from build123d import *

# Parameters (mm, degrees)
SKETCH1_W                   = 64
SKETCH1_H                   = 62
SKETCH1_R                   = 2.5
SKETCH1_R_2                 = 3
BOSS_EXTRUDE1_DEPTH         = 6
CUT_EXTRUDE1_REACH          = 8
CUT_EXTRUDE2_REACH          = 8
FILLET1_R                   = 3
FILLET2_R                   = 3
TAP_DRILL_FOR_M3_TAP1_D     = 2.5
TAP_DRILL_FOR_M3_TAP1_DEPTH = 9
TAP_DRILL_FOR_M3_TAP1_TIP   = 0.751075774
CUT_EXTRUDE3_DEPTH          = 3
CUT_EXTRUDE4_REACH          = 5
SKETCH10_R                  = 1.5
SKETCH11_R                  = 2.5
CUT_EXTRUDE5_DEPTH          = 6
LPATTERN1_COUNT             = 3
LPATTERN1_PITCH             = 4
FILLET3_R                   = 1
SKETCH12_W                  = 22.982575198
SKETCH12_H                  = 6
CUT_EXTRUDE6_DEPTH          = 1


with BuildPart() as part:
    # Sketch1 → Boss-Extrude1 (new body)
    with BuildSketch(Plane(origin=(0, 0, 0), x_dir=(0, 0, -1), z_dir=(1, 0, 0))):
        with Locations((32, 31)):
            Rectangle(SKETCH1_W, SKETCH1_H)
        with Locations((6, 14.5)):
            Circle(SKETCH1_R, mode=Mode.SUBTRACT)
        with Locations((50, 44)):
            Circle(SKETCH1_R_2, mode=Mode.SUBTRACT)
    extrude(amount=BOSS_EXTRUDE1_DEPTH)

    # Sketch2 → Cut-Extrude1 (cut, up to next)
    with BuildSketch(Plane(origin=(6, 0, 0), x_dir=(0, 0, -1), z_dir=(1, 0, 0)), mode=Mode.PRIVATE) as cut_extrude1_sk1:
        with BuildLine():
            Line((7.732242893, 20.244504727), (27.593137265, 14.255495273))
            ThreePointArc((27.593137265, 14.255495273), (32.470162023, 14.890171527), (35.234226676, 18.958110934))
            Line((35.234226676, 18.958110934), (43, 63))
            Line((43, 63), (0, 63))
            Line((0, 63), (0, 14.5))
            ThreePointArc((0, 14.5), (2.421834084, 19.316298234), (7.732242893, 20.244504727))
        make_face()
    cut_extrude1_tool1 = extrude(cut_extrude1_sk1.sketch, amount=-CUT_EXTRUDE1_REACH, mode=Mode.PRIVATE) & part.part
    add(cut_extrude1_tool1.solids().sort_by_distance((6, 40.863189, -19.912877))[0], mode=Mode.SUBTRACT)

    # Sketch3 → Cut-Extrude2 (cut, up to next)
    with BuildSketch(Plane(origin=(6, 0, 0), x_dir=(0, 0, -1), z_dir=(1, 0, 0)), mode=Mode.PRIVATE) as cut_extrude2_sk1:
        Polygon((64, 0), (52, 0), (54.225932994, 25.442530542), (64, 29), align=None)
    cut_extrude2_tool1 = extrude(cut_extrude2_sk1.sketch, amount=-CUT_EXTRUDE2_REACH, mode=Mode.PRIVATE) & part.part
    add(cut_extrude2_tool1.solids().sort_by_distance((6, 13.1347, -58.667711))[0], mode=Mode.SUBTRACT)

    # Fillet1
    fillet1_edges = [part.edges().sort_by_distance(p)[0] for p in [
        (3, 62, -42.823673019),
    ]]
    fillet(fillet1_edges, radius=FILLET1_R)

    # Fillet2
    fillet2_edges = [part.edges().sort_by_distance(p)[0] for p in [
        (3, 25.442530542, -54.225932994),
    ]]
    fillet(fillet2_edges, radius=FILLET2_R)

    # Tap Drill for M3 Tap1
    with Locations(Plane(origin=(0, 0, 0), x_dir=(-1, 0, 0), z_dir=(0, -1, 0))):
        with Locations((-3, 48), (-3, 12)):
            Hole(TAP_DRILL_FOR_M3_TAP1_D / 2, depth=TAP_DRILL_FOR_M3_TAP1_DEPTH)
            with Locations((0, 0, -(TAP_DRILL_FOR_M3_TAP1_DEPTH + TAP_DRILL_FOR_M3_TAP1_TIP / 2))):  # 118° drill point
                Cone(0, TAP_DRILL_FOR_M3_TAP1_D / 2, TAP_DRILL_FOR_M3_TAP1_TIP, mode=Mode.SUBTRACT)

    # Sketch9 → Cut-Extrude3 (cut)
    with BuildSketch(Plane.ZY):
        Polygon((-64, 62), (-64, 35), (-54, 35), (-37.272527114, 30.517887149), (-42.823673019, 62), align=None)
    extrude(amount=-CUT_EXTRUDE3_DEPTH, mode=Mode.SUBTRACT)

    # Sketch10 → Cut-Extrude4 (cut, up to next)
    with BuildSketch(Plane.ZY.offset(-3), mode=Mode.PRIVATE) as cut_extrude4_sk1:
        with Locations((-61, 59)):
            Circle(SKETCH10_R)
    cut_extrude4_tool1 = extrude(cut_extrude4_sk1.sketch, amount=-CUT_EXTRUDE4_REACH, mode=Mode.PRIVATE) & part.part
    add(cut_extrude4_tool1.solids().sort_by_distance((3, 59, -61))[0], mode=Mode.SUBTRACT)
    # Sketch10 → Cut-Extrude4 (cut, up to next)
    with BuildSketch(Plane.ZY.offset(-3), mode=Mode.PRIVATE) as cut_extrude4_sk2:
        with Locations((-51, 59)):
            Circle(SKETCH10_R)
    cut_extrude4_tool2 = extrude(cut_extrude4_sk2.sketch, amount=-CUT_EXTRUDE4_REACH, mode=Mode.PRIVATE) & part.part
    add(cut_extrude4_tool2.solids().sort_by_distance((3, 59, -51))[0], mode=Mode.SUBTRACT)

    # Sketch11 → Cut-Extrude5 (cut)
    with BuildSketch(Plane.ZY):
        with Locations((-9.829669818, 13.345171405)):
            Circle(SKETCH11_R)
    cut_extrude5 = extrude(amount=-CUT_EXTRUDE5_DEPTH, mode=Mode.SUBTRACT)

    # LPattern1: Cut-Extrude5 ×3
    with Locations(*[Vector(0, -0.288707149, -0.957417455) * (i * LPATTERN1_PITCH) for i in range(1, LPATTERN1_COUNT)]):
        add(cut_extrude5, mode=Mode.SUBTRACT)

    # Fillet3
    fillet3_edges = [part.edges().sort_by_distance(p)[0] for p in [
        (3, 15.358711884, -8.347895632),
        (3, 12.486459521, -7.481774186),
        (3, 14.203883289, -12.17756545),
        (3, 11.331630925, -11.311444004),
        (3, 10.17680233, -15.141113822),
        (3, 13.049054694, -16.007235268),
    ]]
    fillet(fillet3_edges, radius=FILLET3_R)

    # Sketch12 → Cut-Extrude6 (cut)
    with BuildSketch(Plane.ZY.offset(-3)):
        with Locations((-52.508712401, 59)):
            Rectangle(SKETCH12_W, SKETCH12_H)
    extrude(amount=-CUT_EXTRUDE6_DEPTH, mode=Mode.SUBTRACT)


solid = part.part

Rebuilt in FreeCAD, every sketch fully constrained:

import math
import FreeCAD as App
import Part
import Sketcher
Q = App.Units.Quantity


def edges_at(feature, points):
    """Names of the edges that pass closest to the given points."""
    edges = feature.Shape.Edges
    near = lambda p: min(range(len(edges)), key=lambda i: edges[i].distToShape(Part.Vertex(*p))[0])
    return sorted({f"Edge{near(p) + 1}" for p in points})


def add_polygon(sketch, points):
    """Adds a closed chain of lines whose ends are joined by coincident constraints."""
    first, n = sketch.GeometryCount, len(points)
    for a, b in zip(points, points[1:] + points[:1]):
        sketch.addGeometry(Part.LineSegment(App.Vector(*a, 0), App.Vector(*b, 0)), False)
    for i in range(n):
        sketch.addConstraint(Sketcher.Constraint("Coincident", first + i, 2, first + (i + 1) % n, 1))

doc = App.newDocument("Part")
body = doc.addObject("PartDesign::Body", "Body")

sketch1 = doc.addObject("Sketcher::SketchObject", "Sketch")
body.addObject(sketch1)
sketch1.AttachmentSupport = (doc.YZ_Plane, [""])
sketch1.MapMode = "FlatFace"
add_polygon(sketch1, [(62, 0), (0, 0), (0, -64), (62, -64)])
sketch1.addGeometry(Part.Circle(App.Vector(14.5, -6, 0), App.Vector(0, 0, 1), 2.5), False)
sketch1.addGeometry(Part.Circle(App.Vector(44, -50, 0), App.Vector(0, 0, 1), 3), False)
sketch1.addConstraint([
    Sketcher.Constraint("Horizontal", 0),
    Sketcher.Constraint("Vertical", 1),
    Sketcher.Constraint("Horizontal", 2),
    Sketcher.Constraint("Vertical", 3),
    Sketcher.Constraint("Coincident", 0, 2, -1, 1),
    Sketcher.Constraint("Diameter", 4, 5.0),
    Sketcher.Constraint("Diameter", 5, 6.0),
    Sketcher.Constraint("DistanceX", 0, 2, 0, 1, 62.0),
    Sketcher.Constraint("DistanceY", 1, 2, 1, 1, 64.0),
    Sketcher.Constraint("DistanceY", 4, 3, -1, 1, 6.0),
    Sketcher.Constraint("DistanceX", -1, 1, 5, 3, 44.0),
    Sketcher.Constraint("DistanceY", 5, 3, -1, 1, 50.0),
    Sketcher.Constraint("DistanceX", -1, 1, 4, 3, 14.5),
])
pad1 = doc.addObject("PartDesign::Pad", "Pad")
body.addObject(pad1)
pad1.Profile = sketch1
pad1.Length = 6

sketch2 = doc.addObject("Sketcher::SketchObject", "Sketch001")
body.addObject(sketch2)
sketch2.AttachmentSupport = (doc.YZ_Plane, [""])
sketch2.MapMode = "FlatFace"
sketch2.AttachmentOffset = App.Placement(App.Vector(0, 0, 6), App.Rotation())
sketch2.addGeometry([
    Part.LineSegment(App.Vector(20, -8, 0), App.Vector(14, -28, 0)),
    Part.ArcOfCircle(Part.Circle(App.Vector(20, -29, 0), App.Vector(0, 0, 1), 6), math.radians(163), math.radians(260)),
    Part.LineSegment(App.Vector(19, -35, 0), App.Vector(63, -43, 0)),
    Part.LineSegment(App.Vector(63, -43, 0), App.Vector(63, 0, 0)),
    Part.LineSegment(App.Vector(63, 0, 0), App.Vector(14, 0, 0)),
    Part.ArcOfCircle(Part.Circle(App.Vector(14, -6, 0), App.Vector(0, 0, 1), 6), math.radians(-17), math.radians(90)),
], False)
sketch2.addConstraint([
    Sketcher.Constraint("Tangent", 0, 2, 1, 1),
    Sketcher.Constraint("Tangent", 1, 2, 2, 1),
    Sketcher.Constraint("Coincident", 2, 2, 3, 1),
    Sketcher.Constraint("Coincident", 3, 2, 4, 1),
    Sketcher.Constraint("Tangent", 4, 2, 5, 2),
    Sketcher.Constraint("Tangent", 5, 1, 0, 1),
    Sketcher.Constraint("Vertical", 3),
    Sketcher.Constraint("Horizontal", 4),
    Sketcher.Constraint("Equal", 1, 5),
    Sketcher.Constraint("PointOnObject", 3, 2, -1),
    Sketcher.Constraint("Radius", 1, 6.0),
    Sketcher.Constraint("DistanceY", 3, 1, 3, 2, 43.0),
    Sketcher.Constraint("Angle", 2, Q("-10 deg")),
    Sketcher.Constraint("DistanceX", 4, 2, 4, 1, 48.5),
    Sketcher.Constraint("DistanceX", -1, 1, 1, 3, 20.0),
    Sketcher.Constraint("DistanceX", -1, 1, 2, 2, 63.0),
])
pocket1 = doc.addObject("PartDesign::Pocket", "Pocket")
body.addObject(pocket1)
pocket1.Profile = sketch2
pocket1.Type = "UpToFirst"

sketch3 = doc.addObject("Sketcher::SketchObject", "Sketch002")
body.addObject(sketch3)
sketch3.AttachmentSupport = (doc.YZ_Plane, [""])
sketch3.MapMode = "FlatFace"
sketch3.AttachmentOffset = App.Placement(App.Vector(0, 0, 6), App.Rotation())
add_polygon(sketch3, [(0, -52), (0, -64), (29, -64), (25, -54)])
sketch3.addConstraint([
    Sketcher.Constraint("Vertical", 0),
    Sketcher.Constraint("Horizontal", 1),
    Sketcher.Constraint("PointOnObject", 0, 2, -2),
    Sketcher.Constraint("DistanceX", 1, 1, 1, 2, 29.0),
    Sketcher.Constraint("DistanceY", 0, 2, 0, 1, 12.0),
    Sketcher.Constraint("Angle", 2, Q("110 deg")),
    Sketcher.Constraint("Angle", 3, Q("175 deg")),
    Sketcher.Constraint("DistanceY", 0, 2, -1, 1, 64.0),
])
pocket2 = doc.addObject("PartDesign::Pocket", "Pocket001")
body.addObject(pocket2)
pocket2.Profile = sketch3
pocket2.Type = "UpToFirst"
doc.recompute()

fillet = doc.addObject("PartDesign::Fillet", "Fillet")
body.addObject(fillet)
fillet.Base = (pocket2, edges_at(pocket2, [(3, 62, -42.824)]))
fillet.Radius = 3
doc.recompute()

fillet2 = doc.addObject("PartDesign::Fillet", "Fillet001")
body.addObject(fillet2)
fillet2.Base = (fillet, edges_at(fillet, [(3, 25.443, -54.226)]))
fillet2.Radius = 3

sketch4 = doc.addObject("Sketcher::SketchObject", "Sketch003")
body.addObject(sketch4)
sketch4.AttachmentSupport = (doc.XZ_Plane, [""])
sketch4.MapMode = "FlatFace"
sketch4.addGeometry([
    Part.Circle(App.Vector(3, -48, 0), App.Vector(0, 0, 1), 1.2),
    Part.Circle(App.Vector(3, -12, 0), App.Vector(0, 0, 1), 1.2),
], False)
sketch4.addConstraint([
    Sketcher.Constraint("Equal", 0, 1),
    Sketcher.Constraint("Vertical", 0, 3, 1, 3),
    Sketcher.Constraint("Diameter", 0, 2.5),
    Sketcher.Constraint("DistanceX", -1, 1, 0, 3, 3.0),
    Sketcher.Constraint("DistanceY", 0, 3, -1, 1, 48.0),
    Sketcher.Constraint("DistanceY", 1, 3, -1, 1, 12.0),
])
doc.recompute()
hole = doc.addObject("PartDesign::Hole", "Hole")
body.addObject(hole)
hole.Profile = sketch4
hole.ThreadType = "None"
hole.Diameter = 2.5
hole.DepthType = "Dimension"
hole.Depth = 9
hole.DrillPoint = "Angled"
hole.DrillPointAngle = 118

sketch5 = doc.addObject("Sketcher::SketchObject", "Sketch004")
body.addObject(sketch5)
sketch5.AttachmentSupport = (doc.YZ_Plane, [""])
sketch5.MapMode = "FlatFace"
add_polygon(sketch5, [(62, -64), (35, -64), (35, -54), (31, -37), (62, -43)])
sketch5.addConstraint([
    Sketcher.Constraint("Horizontal", 0),
    Sketcher.Constraint("Vertical", 1),
    Sketcher.Constraint("Vertical", 4),
    Sketcher.Constraint("DistanceX", 0, 2, 0, 1, 27.0),
    Sketcher.Constraint("DistanceY", 1, 1, 1, 2, 10.0),
    Sketcher.Constraint("Angle", 2, Q("105 deg")),
    Sketcher.Constraint("Angle", 3, Q("-10 deg")),
    Sketcher.Constraint("DistanceX", -1, 1, 0, 2, 35.0),
    Sketcher.Constraint("DistanceY", 0, 2, -1, 1, 64.0),
    Sketcher.Constraint("DistanceY", 4, 2, 4, 1, 21.176327),
])
pocket3 = doc.addObject("PartDesign::Pocket", "Pocket002")
body.addObject(pocket3)
pocket3.Profile = sketch5
pocket3.Length = 3
pocket3.Reversed = True

sketch6 = doc.addObject("Sketcher::SketchObject", "Sketch005")
body.addObject(sketch6)
sketch6.AttachmentSupport = (doc.YZ_Plane, [""])
sketch6.MapMode = "FlatFace"
sketch6.AttachmentOffset = App.Placement(App.Vector(0, 0, 3), App.Rotation())
sketch6.addGeometry(Part.Circle(App.Vector(59, -61, 0), App.Vector(0, 0, 1), 1.5), False)
sketch6.addConstraint([
    Sketcher.Constraint("Diameter", 0, 3.0),
    Sketcher.Constraint("DistanceX", -1, 1, 0, 3, 59.0),
    Sketcher.Constraint("DistanceY", 0, 3, -1, 1, 61.0),
])
pocket4 = doc.addObject("PartDesign::Pocket", "Pocket003")
body.addObject(pocket4)
pocket4.Profile = sketch6
pocket4.Type = "UpToFirst"
pocket4.Reversed = True

sketch7 = doc.addObject("Sketcher::SketchObject", "Sketch006")
body.addObject(sketch7)
sketch7.AttachmentSupport = (doc.YZ_Plane, [""])
sketch7.MapMode = "FlatFace"
sketch7.AttachmentOffset = App.Placement(App.Vector(0, 0, 3), App.Rotation())
sketch7.addGeometry(Part.Circle(App.Vector(59, -51, 0), App.Vector(0, 0, 1), 1.5), False)
sketch7.addConstraint([
    Sketcher.Constraint("Diameter", 0, 3.0),
    Sketcher.Constraint("DistanceX", -1, 1, 0, 3, 59.0),
    Sketcher.Constraint("DistanceY", 0, 3, -1, 1, 51.0),
])
pocket5 = doc.addObject("PartDesign::Pocket", "Pocket004")
body.addObject(pocket5)
pocket5.Profile = sketch7
pocket5.Type = "UpToFirst"
pocket5.Reversed = True

sketch8 = doc.addObject("Sketcher::SketchObject", "Sketch007")
body.addObject(sketch8)
sketch8.AttachmentSupport = (doc.YZ_Plane, [""])
sketch8.MapMode = "FlatFace"
sketch8.addGeometry(Part.Circle(App.Vector(13.3, -9.8, 0), App.Vector(0, 0, 1), 2.5), False)
sketch8.addConstraint([
    Sketcher.Constraint("Diameter", 0, 5.0),
    Sketcher.Constraint("DistanceX", -1, 1, 0, 3, 13.345171),
    Sketcher.Constraint("DistanceY", 0, 3, -1, 1, 9.82967),
])
pocket6 = doc.addObject("PartDesign::Pocket", "Pocket005")
body.addObject(pocket6)
pocket6.Profile = sketch8
pocket6.Length = 6
pocket6.Reversed = True
doc.recompute()

datumline = doc.addObject("PartDesign::Line", "DatumLine")
body.addObject(datumline)
datumline.Placement = App.Placement(App.Vector(0, 0, 0), App.Rotation(App.Vector(0, 0, 1), App.Vector(0, -0.288707149, -0.957417455)))
linearpattern = doc.addObject("PartDesign::LinearPattern", "LinearPattern")
body.addObject(linearpattern)
linearpattern.Originals = [pocket6]
linearpattern.Direction = (datumline, [""])
linearpattern.Mode = "offset"
linearpattern.Offset = 4
linearpattern.Occurrences = 3
body.Tip = linearpattern
doc.recompute()

fillet3 = doc.addObject("PartDesign::Fillet", "Fillet002")
body.addObject(fillet3)
fillet3.Base = (linearpattern, edges_at(linearpattern, [
    (3, 15.359, -8.348),
    (3, 12.486, -7.482),
    (3, 14.204, -12.178),
    (3, 11.332, -11.311),
    (3, 10.177, -15.141),
    (3, 13.049, -16.007),
]))
fillet3.Radius = 1

sketch9 = doc.addObject("Sketcher::SketchObject", "Sketch008")
body.addObject(sketch9)
sketch9.AttachmentSupport = (doc.YZ_Plane, [""])
sketch9.MapMode = "FlatFace"
sketch9.AttachmentOffset = App.Placement(App.Vector(0, 0, 3), App.Rotation())
add_polygon(sketch9, [(62, -64), (56, -64), (56, -41), (62, -41)])
sketch9.addConstraint([
    Sketcher.Constraint("Horizontal", 0),
    Sketcher.Constraint("Vertical", 1),
    Sketcher.Constraint("Horizontal", 2),
    Sketcher.Constraint("Vertical", 3),
    Sketcher.Constraint("DistanceX", 0, 2, 0, 1, 6.0),
    Sketcher.Constraint("DistanceX", -1, 1, 0, 2, 56.0),
    Sketcher.Constraint("DistanceY", 0, 2, -1, 1, 64.0),
    Sketcher.Constraint("DistanceY", 1, 1, 1, 2, 22.982575),
])
pocket7 = doc.addObject("PartDesign::Pocket", "Pocket006")
body.addObject(pocket7)
pocket7.Profile = sketch9
pocket7.Length = 1
pocket7.Reversed = True

doc.recompute()
